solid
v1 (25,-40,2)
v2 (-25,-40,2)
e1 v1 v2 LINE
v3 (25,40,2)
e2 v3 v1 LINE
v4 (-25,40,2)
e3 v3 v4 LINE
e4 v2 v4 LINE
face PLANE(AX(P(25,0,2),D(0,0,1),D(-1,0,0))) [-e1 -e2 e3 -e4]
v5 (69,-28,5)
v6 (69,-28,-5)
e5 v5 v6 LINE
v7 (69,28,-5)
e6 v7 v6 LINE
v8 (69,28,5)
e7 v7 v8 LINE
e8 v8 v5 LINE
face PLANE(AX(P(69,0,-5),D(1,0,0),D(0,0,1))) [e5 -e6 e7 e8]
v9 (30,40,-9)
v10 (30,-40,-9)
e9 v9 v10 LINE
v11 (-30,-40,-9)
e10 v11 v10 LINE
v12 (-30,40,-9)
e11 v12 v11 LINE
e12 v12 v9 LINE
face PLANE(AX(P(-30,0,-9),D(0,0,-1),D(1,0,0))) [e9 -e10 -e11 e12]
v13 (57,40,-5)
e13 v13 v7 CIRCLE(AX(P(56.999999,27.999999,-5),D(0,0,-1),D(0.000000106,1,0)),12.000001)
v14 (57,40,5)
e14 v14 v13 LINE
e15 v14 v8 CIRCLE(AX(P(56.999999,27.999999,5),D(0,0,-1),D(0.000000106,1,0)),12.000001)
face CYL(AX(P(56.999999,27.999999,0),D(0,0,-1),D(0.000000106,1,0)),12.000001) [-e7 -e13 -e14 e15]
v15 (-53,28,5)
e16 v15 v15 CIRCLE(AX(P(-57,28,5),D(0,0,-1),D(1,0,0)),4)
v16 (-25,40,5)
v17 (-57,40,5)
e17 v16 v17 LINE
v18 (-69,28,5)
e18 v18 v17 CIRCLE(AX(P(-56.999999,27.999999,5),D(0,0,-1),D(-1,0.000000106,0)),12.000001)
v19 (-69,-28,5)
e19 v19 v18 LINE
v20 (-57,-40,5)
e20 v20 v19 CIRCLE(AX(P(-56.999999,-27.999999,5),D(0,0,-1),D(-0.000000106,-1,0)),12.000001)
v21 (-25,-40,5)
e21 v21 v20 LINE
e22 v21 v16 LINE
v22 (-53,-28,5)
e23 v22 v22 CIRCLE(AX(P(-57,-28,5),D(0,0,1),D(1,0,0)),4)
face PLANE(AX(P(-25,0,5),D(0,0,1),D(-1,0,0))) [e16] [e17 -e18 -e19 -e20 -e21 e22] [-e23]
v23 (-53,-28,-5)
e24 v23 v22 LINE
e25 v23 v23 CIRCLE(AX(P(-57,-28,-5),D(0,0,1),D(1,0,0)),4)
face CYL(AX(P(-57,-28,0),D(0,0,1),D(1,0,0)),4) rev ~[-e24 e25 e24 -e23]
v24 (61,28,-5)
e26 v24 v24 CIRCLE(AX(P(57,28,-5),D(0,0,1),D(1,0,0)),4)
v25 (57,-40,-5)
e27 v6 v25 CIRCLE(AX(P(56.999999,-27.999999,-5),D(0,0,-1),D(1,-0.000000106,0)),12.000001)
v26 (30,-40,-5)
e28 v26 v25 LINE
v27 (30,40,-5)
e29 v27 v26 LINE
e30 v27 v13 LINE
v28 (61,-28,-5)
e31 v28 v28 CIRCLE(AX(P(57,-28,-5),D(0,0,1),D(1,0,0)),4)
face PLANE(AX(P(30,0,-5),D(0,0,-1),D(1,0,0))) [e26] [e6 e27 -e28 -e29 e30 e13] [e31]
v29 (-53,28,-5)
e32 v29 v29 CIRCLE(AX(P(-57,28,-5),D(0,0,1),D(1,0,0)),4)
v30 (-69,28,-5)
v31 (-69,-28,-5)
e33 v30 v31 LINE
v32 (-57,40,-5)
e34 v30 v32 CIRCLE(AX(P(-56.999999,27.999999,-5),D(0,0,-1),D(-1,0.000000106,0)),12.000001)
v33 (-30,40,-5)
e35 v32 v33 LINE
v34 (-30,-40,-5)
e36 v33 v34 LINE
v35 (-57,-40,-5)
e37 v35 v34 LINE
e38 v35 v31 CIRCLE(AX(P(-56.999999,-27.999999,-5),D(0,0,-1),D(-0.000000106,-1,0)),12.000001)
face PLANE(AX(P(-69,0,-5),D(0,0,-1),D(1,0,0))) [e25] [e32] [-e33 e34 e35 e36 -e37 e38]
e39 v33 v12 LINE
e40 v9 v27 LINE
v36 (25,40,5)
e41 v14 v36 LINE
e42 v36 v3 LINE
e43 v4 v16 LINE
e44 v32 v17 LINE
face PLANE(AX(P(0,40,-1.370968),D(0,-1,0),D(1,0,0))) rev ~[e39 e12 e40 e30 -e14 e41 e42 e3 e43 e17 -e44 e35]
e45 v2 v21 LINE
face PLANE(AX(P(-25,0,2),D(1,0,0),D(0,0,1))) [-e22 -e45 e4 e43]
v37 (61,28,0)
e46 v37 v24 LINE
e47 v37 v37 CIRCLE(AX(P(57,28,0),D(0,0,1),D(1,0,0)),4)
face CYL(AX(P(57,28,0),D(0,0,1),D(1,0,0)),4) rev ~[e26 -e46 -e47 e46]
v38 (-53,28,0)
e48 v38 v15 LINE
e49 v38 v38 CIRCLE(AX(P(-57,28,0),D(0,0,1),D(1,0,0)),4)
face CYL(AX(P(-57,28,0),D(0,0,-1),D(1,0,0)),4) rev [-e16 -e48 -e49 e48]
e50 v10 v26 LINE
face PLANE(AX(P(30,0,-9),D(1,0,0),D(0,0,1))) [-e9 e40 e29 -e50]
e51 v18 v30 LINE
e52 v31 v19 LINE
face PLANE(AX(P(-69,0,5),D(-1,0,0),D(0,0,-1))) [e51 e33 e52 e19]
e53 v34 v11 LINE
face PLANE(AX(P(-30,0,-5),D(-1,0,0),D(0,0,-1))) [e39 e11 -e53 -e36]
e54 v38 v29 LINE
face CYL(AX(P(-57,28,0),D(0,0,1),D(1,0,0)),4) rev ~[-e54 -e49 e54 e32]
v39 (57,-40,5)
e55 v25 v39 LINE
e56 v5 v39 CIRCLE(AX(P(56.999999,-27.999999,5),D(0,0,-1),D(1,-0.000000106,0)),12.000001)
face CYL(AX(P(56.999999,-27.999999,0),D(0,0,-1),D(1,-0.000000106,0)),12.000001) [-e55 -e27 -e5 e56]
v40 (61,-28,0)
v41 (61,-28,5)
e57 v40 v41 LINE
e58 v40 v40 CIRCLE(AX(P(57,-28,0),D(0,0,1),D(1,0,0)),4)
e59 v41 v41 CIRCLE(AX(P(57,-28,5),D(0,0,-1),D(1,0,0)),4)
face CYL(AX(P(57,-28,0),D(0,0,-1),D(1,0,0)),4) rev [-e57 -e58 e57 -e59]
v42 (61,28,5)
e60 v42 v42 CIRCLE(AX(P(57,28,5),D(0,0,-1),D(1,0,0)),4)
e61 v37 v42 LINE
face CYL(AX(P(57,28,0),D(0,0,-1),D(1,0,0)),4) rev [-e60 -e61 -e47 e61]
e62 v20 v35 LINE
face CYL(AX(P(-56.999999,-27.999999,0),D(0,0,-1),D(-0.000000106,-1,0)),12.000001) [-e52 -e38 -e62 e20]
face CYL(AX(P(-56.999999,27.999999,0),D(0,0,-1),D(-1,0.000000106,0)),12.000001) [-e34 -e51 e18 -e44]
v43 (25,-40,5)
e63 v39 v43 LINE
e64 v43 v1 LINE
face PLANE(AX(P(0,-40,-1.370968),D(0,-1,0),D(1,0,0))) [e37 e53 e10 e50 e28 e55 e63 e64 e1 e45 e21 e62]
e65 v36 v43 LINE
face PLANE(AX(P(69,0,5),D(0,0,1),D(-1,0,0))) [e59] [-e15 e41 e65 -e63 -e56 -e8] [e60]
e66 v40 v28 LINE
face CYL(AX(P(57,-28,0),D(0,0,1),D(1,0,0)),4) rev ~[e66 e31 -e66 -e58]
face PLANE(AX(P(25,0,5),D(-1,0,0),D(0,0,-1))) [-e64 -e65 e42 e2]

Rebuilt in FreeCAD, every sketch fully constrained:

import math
import FreeCAD as App
import Part
import Sketcher
from FreeCAD import Vector


def add_polygon(sketch, points):
    """Adds a closed chain of lines whose ends are joined by coincident constraints."""
    first, n = sketch.GeometryCount, len(points)
    for a, b in zip(points, points[1:] + points[:1]):
        sketch.addGeometry(Part.LineSegment(App.Vector(*a, 0), App.Vector(*b, 0)), False)
    for i in range(n):
        sketch.addConstraint(Sketcher.Constraint("Coincident", first + i, 2, first + (i + 1) % n, 1))

doc = App.newDocument("Part")
body = doc.addObject("PartDesign::Body", "Body")

# Sketch on XZ plane
sketch1 = body.newObject("Sketcher::SketchObject", "Sketch")
sketch1.AttachmentSupport = (doc.getObject("XZ_Plane"), [""])
sketch1.MapMode = "FlatFace"
add_polygon(sketch1, [(-69, 5), (-69, -5), (-30, -5), (-30, -9), (30, -9), (30, -5), (69, -5), (69, 5), (25, 5), (25, 2), (-25, 2), (-25, 5)])  # lines 0-11
sketch1.addConstraint([
    Sketcher.Constraint("Vertical", 0),
    Sketcher.Constraint("Horizontal", 1),
    Sketcher.Constraint("Vertical", 2),
    Sketcher.Constraint("Horizontal", 3),
    Sketcher.Constraint("Vertical", 4),
    Sketcher.Constraint("Horizontal", 5),
    Sketcher.Constraint("Vertical", 6),
    Sketcher.Constraint("Horizontal", 7),
    Sketcher.Constraint("Vertical", 8),
    Sketcher.Constraint("Horizontal", 9),
    Sketcher.Constraint("Vertical", 10),
    Sketcher.Constraint("Horizontal", 11),
    Sketcher.Constraint("Symmetric", 0, 2, 6, 2, -1, 1),
    Sketcher.Constraint("Symmetric", 1, 2, 4, 2, -2),
    Sketcher.Constraint("Symmetric", 7, 2, 10, 2, -2),
    Sketcher.Constraint("DistanceX", 1, 1, 1, 2, 39.0),
    Sketcher.Constraint("DistanceX", 3, 1, 3, 2, 60.0),
    Sketcher.Constraint("DistanceX", 7, 2, 7, 1, 44.0),
    Sketcher.Constraint("DistanceY", 0, 2, 0, 1, 10.0),
    Sketcher.Constraint("DistanceY", 2, 2, 2, 1, 4.0),
    Sketcher.Constraint("DistanceY", 8, 2, 8, 1, 3.0),
])
pad1 = body.newObject("PartDesign::Pad", "Pad")
pad1.Profile = sketch1
pad1.Length = 80
pad1.Midplane = True

# Sketch on XY plane
sketch2 = body.newObject("Sketcher::SketchObject", "Sketch001")
sketch2.AttachmentSupport = (doc.getObject("XY_Plane"), [""])
sketch2.MapMode = "FlatFace"
sketch2.addGeometry([
    Part.ArcOfCircle(Part.Circle(Vector(-56.999999, 27.999999, 0), Vector(0, 0, 1), 12.000001), math.radians(90.000006), math.radians(179.999994)),  # 0
    Part.LineSegment(Vector(-57, 40, 0), Vector(-69, 40, 0)),  # 1
    Part.LineSegment(Vector(-69, 40, 0), Vector(-69, 28, 0)),  # 2
    Part.ArcOfCircle(Part.Circle(Vector(-56.999999, -27.999999, 0), Vector(0, 0, 1), 12.000001), math.radians(-179.999994), math.radians(-90.000006)),  # 3
    Part.LineSegment(Vector(-69, -28, 0), Vector(-69, -40, 0)),  # 4
    Part.LineSegment(Vector(-69, -40, 0), Vector(-57, -40, 0)),  # 5
    Part.ArcOfCircle(Part.Circle(Vector(56.999999, -27.999999, 0), Vector(0, 0, 1), 12.000001), math.radians(-89.999994), math.radians(-0.000006)),  # 6
    Part.LineSegment(Vector(57, -40, 0), Vector(69, -40, 0)),  # 7
    Part.LineSegment(Vector(69, -40, 0), Vector(69, -28, 0)),  # 8
    Part.ArcOfCircle(Part.Circle(Vector(56.999999, 27.999999, 0), Vector(0, 0, 1), 12.000001), math.radians(0.000006), math.radians(89.999994)),  # 9
    Part.LineSegment(Vector(69, 28, 0), Vector(69, 40, 0)),  # 10
    Part.LineSegment(Vector(69, 40, 0), Vector(57, 40, 0)),  # 11
    Part.Circle(Vector(-57, 28, 0), Vector(0, 0, 1), 4),  # 12
    Part.Circle(Vector(57, 28, 0), Vector(0, 0, 1), 4),  # 13
    Part.Circle(Vector(57, -28, 0), Vector(0, 0, 1), 4),  # 14
    Part.Circle(Vector(-57, -28, 0), Vector(0, 0, 1), 4),  # 15
], False)
sketch2.addConstraint([
    Sketcher.Constraint("Tangent", 0, 1, 1, 1),
    Sketcher.Constraint("Coincident", 1, 2, 2, 1),
    Sketcher.Constraint("Tangent", 2, 2, 0, 2),
    Sketcher.Constraint("Tangent", 3, 1, 4, 1),
    Sketcher.Constraint("Coincident", 4, 2, 5, 1),
    Sketcher.Constraint("Tangent", 5, 2, 3, 2),
    Sketcher.Constraint("Tangent", 6, 1, 7, 1),
    Sketcher.Constraint("Coincident", 7, 2, 8, 1),
    Sketcher.Constraint("Tangent", 8, 2, 6, 2),
    Sketcher.Constraint("Tangent", 9, 1, 10, 1),
    Sketcher.Constraint("Coincident", 10, 2, 11, 1),
    Sketcher.Constraint("Tangent", 11, 2, 9, 2),
    Sketcher.Constraint("Horizontal", 1),
    Sketcher.Constraint("Vertical", 2),
    Sketcher.Constraint("Vertical", 4),
    Sketcher.Constraint("Horizontal", 5),
    Sketcher.Constraint("Horizontal", 7),
    Sketcher.Constraint("Vertical", 8),
    Sketcher.Constraint("Vertical", 10),
    Sketcher.Constraint("Horizontal", 11),
    Sketcher.Constraint("Coincident", 12, 3, 0, 3),
    Sketcher.Constraint("Coincident", 13, 3, 9, 3),
    Sketcher.Constraint("Coincident", 14, 3, 6, 3),
    Sketcher.Constraint("Coincident", 15, 3, 3, 3),
    Sketcher.Constraint("Equal", 0, 3),
    Sketcher.Constraint("Equal", 3, 6),
    Sketcher.Constraint("Equal", 6, 9),
    Sketcher.Constraint("Equal", 12, 13),
    Sketcher.Constraint("Equal", 13, 14),
    Sketcher.Constraint("Equal", 14, 15),
    Sketcher.Constraint("Symmetric", 0, 3, 6, 3, -1, 1),
    Sketcher.Constraint("Symmetric", 3, 3, 9, 3, -1, 1),
    Sketcher.Constraint("Symmetric", 3, 3, 6, 3, -2),
    Sketcher.Constraint("Diameter", 12, 8.0),
    Sketcher.Constraint("Radius", 0, 12.000001),
    Sketcher.Constraint("DistanceX", 0, 3, -1, 1, 56.999999),
    Sketcher.Constraint("DistanceY", -1, 1, 0, 3, 27.999999),
])
pocket1 = body.newObject("PartDesign::Pocket", "Pocket")
pocket1.Profile = sketch2
pocket1.Length = 80
pocket1.Midplane = True

doc.recompute()
